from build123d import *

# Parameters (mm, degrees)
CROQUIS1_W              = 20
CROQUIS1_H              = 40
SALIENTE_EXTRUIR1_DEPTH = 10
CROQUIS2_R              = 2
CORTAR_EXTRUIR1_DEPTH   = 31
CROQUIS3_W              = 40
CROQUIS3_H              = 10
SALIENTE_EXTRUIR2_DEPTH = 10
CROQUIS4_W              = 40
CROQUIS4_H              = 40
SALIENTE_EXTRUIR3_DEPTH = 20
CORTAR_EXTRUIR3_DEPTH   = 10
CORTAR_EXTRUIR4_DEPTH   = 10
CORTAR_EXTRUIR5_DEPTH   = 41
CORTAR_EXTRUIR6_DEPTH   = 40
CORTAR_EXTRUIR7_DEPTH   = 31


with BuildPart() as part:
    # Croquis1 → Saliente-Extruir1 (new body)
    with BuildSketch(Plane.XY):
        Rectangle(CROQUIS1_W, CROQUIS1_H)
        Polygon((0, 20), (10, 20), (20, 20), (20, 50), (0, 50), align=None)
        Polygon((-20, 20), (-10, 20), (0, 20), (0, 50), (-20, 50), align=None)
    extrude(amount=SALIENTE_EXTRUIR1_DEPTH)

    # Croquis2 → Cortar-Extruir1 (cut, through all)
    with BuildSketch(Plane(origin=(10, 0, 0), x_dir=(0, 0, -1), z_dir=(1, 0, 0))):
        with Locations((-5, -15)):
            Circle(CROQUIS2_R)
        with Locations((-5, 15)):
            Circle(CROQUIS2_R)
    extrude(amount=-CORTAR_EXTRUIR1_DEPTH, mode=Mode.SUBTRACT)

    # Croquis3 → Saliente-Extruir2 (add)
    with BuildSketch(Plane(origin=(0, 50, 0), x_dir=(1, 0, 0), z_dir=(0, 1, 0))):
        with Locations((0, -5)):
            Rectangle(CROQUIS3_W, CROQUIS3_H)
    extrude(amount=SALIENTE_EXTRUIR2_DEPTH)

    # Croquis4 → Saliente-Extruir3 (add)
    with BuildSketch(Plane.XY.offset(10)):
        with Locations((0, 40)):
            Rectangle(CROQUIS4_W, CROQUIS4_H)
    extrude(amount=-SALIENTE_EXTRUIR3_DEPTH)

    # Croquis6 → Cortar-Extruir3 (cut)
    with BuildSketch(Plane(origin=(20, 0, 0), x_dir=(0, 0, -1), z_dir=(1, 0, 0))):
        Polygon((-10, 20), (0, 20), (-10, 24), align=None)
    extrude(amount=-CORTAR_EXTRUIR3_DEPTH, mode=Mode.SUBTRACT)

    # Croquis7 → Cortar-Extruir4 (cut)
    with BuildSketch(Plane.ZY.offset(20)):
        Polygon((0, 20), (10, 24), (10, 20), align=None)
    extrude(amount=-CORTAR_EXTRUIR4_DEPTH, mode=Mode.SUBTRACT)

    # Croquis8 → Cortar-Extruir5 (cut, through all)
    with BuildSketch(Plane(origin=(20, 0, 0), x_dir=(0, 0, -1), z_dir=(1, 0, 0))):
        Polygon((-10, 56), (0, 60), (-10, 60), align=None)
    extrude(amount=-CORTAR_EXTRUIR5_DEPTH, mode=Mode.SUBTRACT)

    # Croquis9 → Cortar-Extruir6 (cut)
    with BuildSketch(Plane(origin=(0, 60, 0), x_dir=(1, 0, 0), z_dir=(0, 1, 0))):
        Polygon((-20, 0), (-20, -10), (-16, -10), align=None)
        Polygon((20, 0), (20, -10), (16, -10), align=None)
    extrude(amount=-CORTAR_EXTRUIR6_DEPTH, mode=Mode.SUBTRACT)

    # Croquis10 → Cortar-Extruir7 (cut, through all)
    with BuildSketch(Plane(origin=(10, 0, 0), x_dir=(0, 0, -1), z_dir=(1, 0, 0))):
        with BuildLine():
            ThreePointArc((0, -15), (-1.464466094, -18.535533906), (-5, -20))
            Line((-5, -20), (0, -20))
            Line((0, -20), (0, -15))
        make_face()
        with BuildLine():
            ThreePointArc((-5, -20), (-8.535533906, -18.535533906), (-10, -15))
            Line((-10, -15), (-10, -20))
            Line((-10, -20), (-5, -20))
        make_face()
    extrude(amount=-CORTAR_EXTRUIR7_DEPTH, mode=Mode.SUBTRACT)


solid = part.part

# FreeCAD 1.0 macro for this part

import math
import FreeCAD as App
import Part
import Sketcher


def add_polygon(sketch, points):
    """Adds a closed chain of lines whose ends are joined by coincident constraints."""
    first, n = sketch.GeometryCount, len(points)
    for a, b in zip(points, points[1:] + points[:1]):
        sketch.addGeometry(Part.LineSegment(App.Vector(*a, 0), App.Vector(*b, 0)), False)
    for i in range(n):
        sketch.addConstraint(Sketcher.Constraint("Coincident", first + i, 2, first + (i + 1) % n, 1))

doc = App.newDocument("Part")
params = doc.addObject("Spreadsheet::Sheet", "Params")
for row, (alias, value) in enumerate([
    ("sketch1_width", "20 mm"),
    ("sketch1_width2", "10 mm"),
    ("sketch1_height", "30 mm"),
    ("pad1_length", "10 mm"),
    ("sketch2_diameter", "4 mm"),
    ("sketch3_width", "40 mm"),
    ("sketch3_height", "10 mm"),
    ("pad2_length", "10 mm"),
    ("sketch4_width", "40 mm"),
    ("pad3_length", "20 mm"),
    ("sketch5_width", "4 mm"),
    ("sketch5_height", "10 mm"),
    ("pocket2_length", "10 mm"),
    ("sketch6_width", "4 mm"),
    ("sketch6_height", "10 mm"),
    ("pocket3_length", "10 mm"),
    ("sketch7_width", "4 mm"),
    ("sketch7_height", "10 mm"),
    ("sketch8_width", "4 mm"),
    ("sketch8_height", "10 mm"),
    ("pocket5_length", "40 mm"),
    ("sketch9_radius", "5 mm"),
], start=1):
    params.set(f"A{row}", alias)
    params.set(f"B{row}", "=" + value)
    params.setAlias(f"B{row}", alias)

body = doc.addObject("PartDesign::Body", "Body")

# Sketch on XY plane
sketch1 = doc.addObject("Sketcher::SketchObject", "Sketch")
body.addObject(sketch1)
sketch1.AttachmentSupport = (doc.XY_Plane, [""])
sketch1.MapMode = "FlatFace"
add_polygon(sketch1, [(-10, 20), (-10, -20), (10, -20), (10, 20), (20, 20), (20, 50), (-20, 50), (-20, 20)])  # lines 0-7
sketch1.addConstraint([
    Sketcher.Constraint("Vertical", 0),
    Sketcher.Constraint("Horizontal", 1),
    Sketcher.Constraint("Vertical", 2),
    Sketcher.Constraint("Horizontal", 3),
    Sketcher.Constraint("Vertical", 4),
    Sketcher.Constraint("Horizontal", 5),
    Sketcher.Constraint("Vertical", 6),
    Sketcher.Constraint("Horizontal", 7),
    Sketcher.Constraint("Symmetric", 0, 2, 2, 2, -1, 1),
    Sketcher.Constraint("Symmetric", 3, 2, 6, 2, -2),
    Sketcher.Constraint("Equal", 5, 0),
    Sketcher.Constraint("DistanceX", 1, 1, 1, 2, 20.0),
    Sketcher.Constraint("DistanceX", 3, 1, 3, 2, 10.0),
    Sketcher.Constraint("DistanceY", 4, 1, 4, 2, 30.0),
])
sketch1.setExpression("Constraints[19]", "Params.sketch1_width")
sketch1.setExpression("Constraints[20]", "Params.sketch1_width2")
sketch1.setExpression("Constraints[21]", "Params.sketch1_height")
pad1 = doc.addObject("PartDesign::Pad", "Pad")
body.addObject(pad1)
pad1.Profile = sketch1
pad1.setExpression("Length", "Params.pad1_length")

# Sketch on YZ plane
sketch2 = doc.addObject("Sketcher::SketchObject", "Sketch001")
body.addObject(sketch2)
sketch2.AttachmentSupport = (doc.YZ_Plane, [""])
sketch2.MapMode = "FlatFace"
sketch2.AttachmentOffset = App.Placement(App.Vector(0, 0, 10), App.Rotation())
sketch2.addGeometry([
    Part.Circle(App.Vector(-15, 5, 0), App.Vector(0, 0, 1), 2),
    Part.Circle(App.Vector(15, 5, 0), App.Vector(0, 0, 1), 2),
], False)
sketch2.addConstraint([
    Sketcher.Constraint("Equal", 0, 1),
    Sketcher.Constraint("Symmetric", 0, 3, 1, 3, -2),
    Sketcher.Constraint("Diameter", 0, 4.0),
    Sketcher.Constraint("DistanceX", 0, 3, -1, 1, 15.0),
    Sketcher.Constraint("DistanceY", -1, 1, 0, 3, 5.0),
])
sketch2.setExpression("Constraints[2]", "Params.sketch2_diameter")
pocket1 = doc.addObject("PartDesign::Pocket", "Pocket")
body.addObject(pocket1)
pocket1.Profile = sketch2
pocket1.Type = "ThroughAll"

# Sketch on XZ plane
sketch3 = doc.addObject("Sketcher::SketchObject", "Sketch002")
body.addObject(sketch3)
sketch3.AttachmentSupport = (doc.XZ_Plane, [""])
sketch3.MapMode = "FlatFace"
sketch3.AttachmentOffset = App.Placement(App.Vector(0, 0, -50), App.Rotation())
add_polygon(sketch3, [(-20, 0), (-20, 10), (20, 10), (20, 0)])  # lines 0-3
sketch3.addConstraint([
    Sketcher.Constraint("Vertical", 0),
    Sketcher.Constraint("Horizontal", 1),
    Sketcher.Constraint("Vertical", 2),
    Sketcher.Constraint("Horizontal", 3),
    Sketcher.Constraint("Symmetric", 2, 2, 3, 2, -1, 1),
    Sketcher.Constraint("DistanceX", 1, 1, 1, 2, 40.0),
    Sketcher.Constraint("DistanceY", 0, 1, 0, 2, 10.0),
])
sketch3.setExpression("Constraints[9]", "Params.sketch3_width")
sketch3.setExpression("Constraints[10]", "Params.sketch3_height")
pad2 = doc.addObject("PartDesign::Pad", "Pad001")
body.addObject(pad2)
pad2.Profile = sketch3
pad2.setExpression("Length", "Params.pad2_length")
pad2.Reversed = True

# Sketch on XY plane
sketch4 = doc.addObject("Sketcher::SketchObject", "Sketch003")
body.addObject(sketch4)
sketch4.AttachmentSupport = (doc.XY_Plane, [""])
sketch4.MapMode = "FlatFace"
sketch4.AttachmentOffset = App.Placement(App.Vector(0, 0, 10), App.Rotation())
add_polygon(sketch4, [(-20, 60), (-20, 20), (20, 20), (20, 60)])  # lines 0-3
sketch4.addConstraint([
    Sketcher.Constraint("Vertical", 0),
    Sketcher.Constraint("Horizontal", 1),
    Sketcher.Constraint("Vertical", 2),
    Sketcher.Constraint("Horizontal", 3),
    Sketcher.Constraint("Equal", 3, 0),
    Sketcher.Constraint("DistanceX", 1, 1, 1, 2, 40.0),
    Sketcher.Constraint("DistanceX", 0, 2, -1, 1, 20.0),
    Sketcher.Constraint("DistanceY", -1, 1, 0, 2, 20.0),
])
sketch4.setExpression("Constraints[9]", "Params.sketch4_width")
pad3 = doc.addObject("PartDesign::Pad", "Pad002")
body.addObject(pad3)
pad3.Profile = sketch4
pad3.setExpression("Length", "Params.pad3_length")
pad3.Reversed = True

# Sketch on YZ plane
sketch5 = doc.addObject("Sketcher::SketchObject", "Sketch004")
body.addObject(sketch5)
sketch5.AttachmentSupport = (doc.YZ_Plane, [""])
sketch5.MapMode = "FlatFace"
sketch5.AttachmentOffset = App.Placement(App.Vector(0, 0, 20), App.Rotation())
add_polygon(sketch5, [(20, 10), (20, 0), (24, 10)])  # lines 0-2
sketch5.addConstraint([
    Sketcher.Constraint("Vertical", 0),
    Sketcher.Constraint("Horizontal", 2),
    Sketcher.Constraint("PointOnObject", 0, 2, -1),
    Sketcher.Constraint("DistanceX", 2, 2, 2, 1, 4.0),
    Sketcher.Constraint("DistanceY", 0, 2, 0, 1, 10.0),
    Sketcher.Constraint("DistanceX", -1, 1, 0, 2, 20.0),
])
sketch5.setExpression("Constraints[6]", "Params.sketch5_width")
sketch5.setExpression("Constraints[7]", "Params.sketch5_height")
pocket2 = doc.addObject("PartDesign::Pocket", "Pocket001")
body.addObject(pocket2)
pocket2.Profile = sketch5
pocket2.setExpression("Length", "Params.pocket2_length")

# Sketch on YZ plane
sketch6 = doc.addObject("Sketcher::SketchObject", "Sketch005")
body.addObject(sketch6)
sketch6.AttachmentSupport = (doc.YZ_Plane, [""])
sketch6.MapMode = "FlatFace"
sketch6.AttachmentOffset = App.Placement(App.Vector(0, 0, -20), App.Rotation())
add_polygon(sketch6, [(24, 10), (20, 0), (20, 10)])  # lines 0-2
sketch6.addConstraint([
    Sketcher.Constraint("Vertical", 1),
    Sketcher.Constraint("Horizontal", 2),
    Sketcher.Constraint("PointOnObject", 0, 2, -1),
    Sketcher.Constraint("DistanceX", 2, 1, 2, 2, 4.0),
    Sketcher.Constraint("DistanceY", 1, 1, 1, 2, 10.0),
    Sketcher.Constraint("DistanceX", -1, 1, 0, 2, 20.0),
])
sketch6.setExpression("Constraints[6]", "Params.sketch6_width")
sketch6.setExpression("Constraints[7]", "Params.sketch6_height")
pocket3 = doc.addObject("PartDesign::Pocket", "Pocket002")
body.addObject(pocket3)
pocket3.Profile = sketch6
pocket3.setExpression("Length", "Params.pocket3_length")
pocket3.Reversed = True

# Sketch on YZ plane
sketch7 = doc.addObject("Sketcher::SketchObject", "Sketch006")
body.addObject(sketch7)
sketch7.AttachmentSupport = (doc.YZ_Plane, [""])
sketch7.MapMode = "FlatFace"
sketch7.AttachmentOffset = App.Placement(App.Vector(0, 0, 20), App.Rotation())
add_polygon(sketch7, [(56, 10), (60, 0), (60, 10)])  # lines 0-2
sketch7.addConstraint([
    Sketcher.Constraint("Vertical", 1),
    Sketcher.Constraint("Horizontal", 2),
    Sketcher.Constraint("PointOnObject", 0, 2, -1),
    Sketcher.Constraint("DistanceX", 2, 2, 2, 1, 4.0),
    Sketcher.Constraint("DistanceY", 1, 1, 1, 2, 10.0),
    Sketcher.Constraint("DistanceX", -1, 1, 0, 2, 60.0),
])
sketch7.setExpression("Constraints[6]", "Params.sketch7_width")
sketch7.setExpression("Constraints[7]", "Params.sketch7_height")
pocket4 = doc.addObject("PartDesign::Pocket", "Pocket003")
body.addObject(pocket4)
pocket4.Profile = sketch7
pocket4.Type = "ThroughAll"

# Sketch on XZ plane
sketch8 = doc.addObject("Sketcher::SketchObject", "Sketch007")
body.addObject(sketch8)
sketch8.AttachmentSupport = (doc.XZ_Plane, [""])
sketch8.MapMode = "FlatFace"
sketch8.AttachmentOffset = App.Placement(App.Vector(0, 0, -60), App.Rotation())
add_polygon(sketch8, [(-20, 0), (-20, 10), (-16, 10)])  # lines 0-2
add_polygon(sketch8, [(20, 10), (20, 0), (16, 10)])  # lines 3-5
sketch8.addConstraint([
    Sketcher.Constraint("Vertical", 0),
    Sketcher.Constraint("Horizontal", 1),
    Sketcher.Constraint("Vertical", 3),
    Sketcher.Constraint("Horizontal", 5),
    Sketcher.Constraint("Symmetric", 2, 2, 3, 2, -1, 1),
    Sketcher.Constraint("Symmetric", 1, 2, 4, 2, -2),
    Sketcher.Constraint("PointOnObject", 2, 2, -1),
    Sketcher.Constraint("DistanceX", 1, 1, 1, 2, 4.0),
    Sketcher.Constraint("DistanceY", 0, 1, 0, 2, 10.0),
    Sketcher.Constraint("DistanceX", 0, 2, -1, 1, 20.0),
])
sketch8.setExpression("Constraints[13]", "Params.sketch8_width")
sketch8.setExpression("Constraints[14]", "Params.sketch8_height")
pocket5 = doc.addObject("PartDesign::Pocket", "Pocket004")
body.addObject(pocket5)
pocket5.Profile = sketch8
pocket5.setExpression("Length", "Params.pocket5_length")
pocket5.Reversed = True

# Sketch on YZ plane
sketch9 = doc.addObject("Sketcher::SketchObject", "Sketch008")
body.addObject(sketch9)
sketch9.AttachmentSupport = (doc.YZ_Plane, [""])
sketch9.MapMode = "FlatFace"
sketch9.AttachmentOffset = App.Placement(App.Vector(0, 0, 10), App.Rotation())
sketch9.addGeometry([
    Part.ArcOfCircle(Part.Circle(App.Vector(-15, 5, 0), App.Vector(0, 0, 1), 5), math.radians(180), math.radians(270)),  # 0
    Part.LineSegment(App.Vector(-20, 5, 0), App.Vector(-20, 0, 0)),  # 1
    Part.LineSegment(App.Vector(-20, 0, 0), App.Vector(-15, 0, 0)),  # 2
    Part.ArcOfCircle(Part.Circle(App.Vector(-15, 5, 0), App.Vector(0, 0, 1), 5), math.radians(90), math.radians(180)),  # 3
    Part.LineSegment(App.Vector(-15, 10, 0), App.Vector(-20, 10, 0)),  # 4
    Part.LineSegment(App.Vector(-20, 10, 0), App.Vector(-20, 5, 0)),  # 5
], False)
sketch9.addConstraint([
    Sketcher.Constraint("Tangent", 0, 1, 1, 1),
    Sketcher.Constraint("Coincident", 1, 2, 2, 1),
    Sketcher.Constraint("Tangent", 2, 2, 0, 2),
    Sketcher.Constraint("Tangent", 3, 1, 4, 1),
    Sketcher.Constraint("Coincident", 4, 2, 5, 1),
    Sketcher.Constraint("Tangent", 5, 2, 3, 2),
    Sketcher.Constraint("Vertical", 1),
    Sketcher.Constraint("Horizontal", 2),
    Sketcher.Constraint("Horizontal", 4),
    Sketcher.Constraint("Vertical", 5),
    Sketcher.Constraint("Coincident", 3, 3, 0, 3),
    Sketcher.Constraint("Equal", 0, 3),
    Sketcher.Constraint("PointOnObject", 1, 2, -1),
    Sketcher.Constraint("Radius", 0, 5.0),
    Sketcher.Constraint("DistanceX", 0, 3, -1, 1, 15.0),
])
sketch9.setExpression("Constraints[13]", "Params.sketch9_radius")
pocket6 = doc.addObject("PartDesign::Pocket", "Pocket005")
body.addObject(pocket6)
pocket6.Profile = sketch9
pocket6.Type = "ThroughAll"

doc.recompute()
